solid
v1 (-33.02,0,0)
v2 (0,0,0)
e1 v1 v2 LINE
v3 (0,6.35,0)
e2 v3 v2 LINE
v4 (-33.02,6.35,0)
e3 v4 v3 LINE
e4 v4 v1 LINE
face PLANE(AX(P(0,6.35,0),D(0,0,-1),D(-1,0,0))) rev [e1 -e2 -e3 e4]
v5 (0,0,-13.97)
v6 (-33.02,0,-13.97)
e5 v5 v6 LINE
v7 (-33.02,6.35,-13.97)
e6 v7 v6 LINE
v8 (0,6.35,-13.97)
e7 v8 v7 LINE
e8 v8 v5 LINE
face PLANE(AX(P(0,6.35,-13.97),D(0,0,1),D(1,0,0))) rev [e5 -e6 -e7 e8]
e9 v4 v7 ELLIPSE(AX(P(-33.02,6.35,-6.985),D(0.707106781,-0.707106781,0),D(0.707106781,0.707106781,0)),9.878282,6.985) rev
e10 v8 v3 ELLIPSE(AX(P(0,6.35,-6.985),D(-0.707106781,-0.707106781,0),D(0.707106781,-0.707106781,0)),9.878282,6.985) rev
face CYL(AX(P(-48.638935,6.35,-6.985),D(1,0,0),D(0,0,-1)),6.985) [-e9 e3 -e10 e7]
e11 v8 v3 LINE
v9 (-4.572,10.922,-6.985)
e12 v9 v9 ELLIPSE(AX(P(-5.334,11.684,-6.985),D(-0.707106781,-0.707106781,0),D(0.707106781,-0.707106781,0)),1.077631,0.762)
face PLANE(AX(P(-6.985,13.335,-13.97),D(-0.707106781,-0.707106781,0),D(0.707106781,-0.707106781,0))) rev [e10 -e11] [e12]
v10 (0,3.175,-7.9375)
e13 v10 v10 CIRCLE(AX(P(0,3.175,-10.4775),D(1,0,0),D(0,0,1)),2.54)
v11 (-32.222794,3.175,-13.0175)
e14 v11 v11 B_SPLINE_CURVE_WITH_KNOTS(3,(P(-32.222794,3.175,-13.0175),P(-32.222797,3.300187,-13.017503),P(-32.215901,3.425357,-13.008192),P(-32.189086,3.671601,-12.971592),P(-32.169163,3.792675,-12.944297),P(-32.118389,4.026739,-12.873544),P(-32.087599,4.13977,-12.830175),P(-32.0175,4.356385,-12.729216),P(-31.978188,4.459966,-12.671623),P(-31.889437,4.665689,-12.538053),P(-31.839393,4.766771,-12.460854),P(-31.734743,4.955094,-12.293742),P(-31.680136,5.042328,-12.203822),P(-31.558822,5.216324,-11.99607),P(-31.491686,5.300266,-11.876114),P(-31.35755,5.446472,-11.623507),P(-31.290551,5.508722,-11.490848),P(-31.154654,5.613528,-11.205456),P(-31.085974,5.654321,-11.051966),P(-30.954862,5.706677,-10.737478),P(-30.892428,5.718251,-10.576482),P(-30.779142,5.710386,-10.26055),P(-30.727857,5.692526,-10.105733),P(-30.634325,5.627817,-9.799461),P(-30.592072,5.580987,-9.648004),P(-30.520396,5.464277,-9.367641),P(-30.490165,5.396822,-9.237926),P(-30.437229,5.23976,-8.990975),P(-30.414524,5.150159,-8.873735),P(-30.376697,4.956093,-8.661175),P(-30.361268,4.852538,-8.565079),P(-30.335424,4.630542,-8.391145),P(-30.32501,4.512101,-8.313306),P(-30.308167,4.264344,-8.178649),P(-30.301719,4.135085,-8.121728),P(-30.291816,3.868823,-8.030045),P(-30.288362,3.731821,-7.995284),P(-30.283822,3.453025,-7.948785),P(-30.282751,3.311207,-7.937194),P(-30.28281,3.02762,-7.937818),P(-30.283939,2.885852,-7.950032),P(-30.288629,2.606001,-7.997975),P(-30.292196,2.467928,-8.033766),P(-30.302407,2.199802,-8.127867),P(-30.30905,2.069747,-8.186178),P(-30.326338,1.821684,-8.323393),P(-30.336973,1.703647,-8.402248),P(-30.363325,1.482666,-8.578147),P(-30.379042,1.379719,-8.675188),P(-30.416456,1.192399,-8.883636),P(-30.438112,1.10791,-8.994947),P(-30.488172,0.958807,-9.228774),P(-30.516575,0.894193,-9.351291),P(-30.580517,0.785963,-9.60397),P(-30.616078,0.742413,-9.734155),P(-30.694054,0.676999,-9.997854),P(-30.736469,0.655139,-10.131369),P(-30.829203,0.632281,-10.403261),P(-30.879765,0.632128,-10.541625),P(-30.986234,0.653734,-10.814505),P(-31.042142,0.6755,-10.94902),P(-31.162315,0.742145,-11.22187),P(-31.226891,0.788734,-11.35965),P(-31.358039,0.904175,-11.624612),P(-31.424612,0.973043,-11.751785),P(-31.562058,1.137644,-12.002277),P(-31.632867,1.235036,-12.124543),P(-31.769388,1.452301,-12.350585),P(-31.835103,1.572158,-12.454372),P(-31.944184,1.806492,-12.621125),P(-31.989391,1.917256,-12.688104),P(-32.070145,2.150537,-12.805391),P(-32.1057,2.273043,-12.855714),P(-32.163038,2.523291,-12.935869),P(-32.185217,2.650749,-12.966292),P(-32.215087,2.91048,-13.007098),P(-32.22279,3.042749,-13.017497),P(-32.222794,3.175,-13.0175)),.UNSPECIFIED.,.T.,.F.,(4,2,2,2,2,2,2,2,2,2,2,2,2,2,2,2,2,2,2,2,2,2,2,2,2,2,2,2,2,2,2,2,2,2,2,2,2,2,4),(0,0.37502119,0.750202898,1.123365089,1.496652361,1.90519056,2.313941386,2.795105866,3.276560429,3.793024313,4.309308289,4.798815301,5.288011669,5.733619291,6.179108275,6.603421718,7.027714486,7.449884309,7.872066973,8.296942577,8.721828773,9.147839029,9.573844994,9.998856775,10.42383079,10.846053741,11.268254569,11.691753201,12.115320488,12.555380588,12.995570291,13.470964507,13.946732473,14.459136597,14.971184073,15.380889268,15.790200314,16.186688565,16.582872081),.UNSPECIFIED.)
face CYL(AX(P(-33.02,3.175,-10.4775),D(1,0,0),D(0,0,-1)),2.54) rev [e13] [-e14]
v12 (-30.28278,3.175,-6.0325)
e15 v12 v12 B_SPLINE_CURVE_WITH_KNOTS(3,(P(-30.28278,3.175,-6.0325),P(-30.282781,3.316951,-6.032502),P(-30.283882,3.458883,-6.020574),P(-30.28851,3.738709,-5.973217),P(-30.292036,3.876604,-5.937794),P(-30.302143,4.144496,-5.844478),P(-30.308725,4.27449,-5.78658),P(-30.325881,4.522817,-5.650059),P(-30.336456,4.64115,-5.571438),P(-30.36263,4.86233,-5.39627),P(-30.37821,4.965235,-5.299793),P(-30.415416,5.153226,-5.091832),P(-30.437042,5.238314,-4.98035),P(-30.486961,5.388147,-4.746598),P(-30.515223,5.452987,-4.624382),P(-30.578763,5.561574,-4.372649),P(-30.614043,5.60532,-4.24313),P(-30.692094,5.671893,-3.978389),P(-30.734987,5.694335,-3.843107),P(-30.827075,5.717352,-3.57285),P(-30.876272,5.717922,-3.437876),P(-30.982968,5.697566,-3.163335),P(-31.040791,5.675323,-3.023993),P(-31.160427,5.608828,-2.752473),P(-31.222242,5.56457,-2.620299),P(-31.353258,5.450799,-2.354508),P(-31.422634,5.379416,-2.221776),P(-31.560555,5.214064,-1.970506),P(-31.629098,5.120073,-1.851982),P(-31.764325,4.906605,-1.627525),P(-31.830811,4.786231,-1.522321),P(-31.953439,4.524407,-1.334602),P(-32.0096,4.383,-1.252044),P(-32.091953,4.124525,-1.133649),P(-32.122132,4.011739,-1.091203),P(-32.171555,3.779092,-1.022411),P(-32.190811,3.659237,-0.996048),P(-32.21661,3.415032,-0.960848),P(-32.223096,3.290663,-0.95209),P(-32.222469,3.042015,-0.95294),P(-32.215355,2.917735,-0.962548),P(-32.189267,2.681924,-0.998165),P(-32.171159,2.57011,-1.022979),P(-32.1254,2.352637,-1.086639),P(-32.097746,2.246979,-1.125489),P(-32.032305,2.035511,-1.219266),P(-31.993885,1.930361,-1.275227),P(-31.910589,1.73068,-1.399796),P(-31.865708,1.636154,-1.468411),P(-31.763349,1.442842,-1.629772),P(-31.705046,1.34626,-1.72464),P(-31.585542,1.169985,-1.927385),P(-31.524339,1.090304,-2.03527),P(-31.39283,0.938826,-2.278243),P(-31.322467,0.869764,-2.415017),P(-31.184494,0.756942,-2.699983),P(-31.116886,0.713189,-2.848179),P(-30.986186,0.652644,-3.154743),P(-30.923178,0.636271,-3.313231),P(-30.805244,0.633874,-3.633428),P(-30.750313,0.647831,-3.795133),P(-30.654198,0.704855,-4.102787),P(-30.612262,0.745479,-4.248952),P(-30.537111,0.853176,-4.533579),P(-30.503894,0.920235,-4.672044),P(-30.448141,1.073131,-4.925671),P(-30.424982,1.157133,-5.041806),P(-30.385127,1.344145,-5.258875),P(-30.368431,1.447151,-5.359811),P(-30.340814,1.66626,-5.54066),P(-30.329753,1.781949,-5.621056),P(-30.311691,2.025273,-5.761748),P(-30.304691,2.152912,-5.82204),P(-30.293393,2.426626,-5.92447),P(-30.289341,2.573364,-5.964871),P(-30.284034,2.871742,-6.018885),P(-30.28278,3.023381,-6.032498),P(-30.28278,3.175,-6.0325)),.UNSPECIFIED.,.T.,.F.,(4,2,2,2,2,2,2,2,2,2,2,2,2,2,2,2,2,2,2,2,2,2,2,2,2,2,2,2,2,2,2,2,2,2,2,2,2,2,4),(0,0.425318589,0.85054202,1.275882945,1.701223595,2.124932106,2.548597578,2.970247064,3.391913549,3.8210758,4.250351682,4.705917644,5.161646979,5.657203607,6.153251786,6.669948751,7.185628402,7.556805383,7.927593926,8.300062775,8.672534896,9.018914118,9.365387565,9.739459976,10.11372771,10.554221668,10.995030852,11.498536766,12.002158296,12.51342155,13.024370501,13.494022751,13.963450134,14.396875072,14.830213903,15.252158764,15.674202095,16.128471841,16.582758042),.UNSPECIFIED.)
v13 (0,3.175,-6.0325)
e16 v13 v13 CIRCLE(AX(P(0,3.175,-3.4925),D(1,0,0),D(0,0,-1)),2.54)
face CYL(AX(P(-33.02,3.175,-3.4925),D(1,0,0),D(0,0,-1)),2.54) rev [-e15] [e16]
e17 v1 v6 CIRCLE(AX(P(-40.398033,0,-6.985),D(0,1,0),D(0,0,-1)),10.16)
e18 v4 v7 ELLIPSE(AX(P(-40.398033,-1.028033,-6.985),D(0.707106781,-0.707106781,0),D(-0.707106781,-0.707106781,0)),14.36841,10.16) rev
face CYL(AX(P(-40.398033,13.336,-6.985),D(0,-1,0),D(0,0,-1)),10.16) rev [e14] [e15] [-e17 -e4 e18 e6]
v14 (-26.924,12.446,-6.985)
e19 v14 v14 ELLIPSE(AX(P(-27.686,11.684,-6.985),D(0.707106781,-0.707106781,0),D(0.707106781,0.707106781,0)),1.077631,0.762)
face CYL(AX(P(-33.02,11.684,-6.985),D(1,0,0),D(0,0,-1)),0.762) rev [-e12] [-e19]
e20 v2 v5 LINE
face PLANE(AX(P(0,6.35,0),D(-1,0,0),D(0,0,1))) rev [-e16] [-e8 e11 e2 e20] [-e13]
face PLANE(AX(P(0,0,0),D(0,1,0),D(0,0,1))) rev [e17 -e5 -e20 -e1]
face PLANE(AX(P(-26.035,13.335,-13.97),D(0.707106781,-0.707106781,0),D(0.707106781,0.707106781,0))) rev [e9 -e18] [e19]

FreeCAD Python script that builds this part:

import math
import FreeCAD as App
import Part
import Sketcher
Q = App.Units.Quantity

doc = App.newDocument("Part")
body = doc.addObject("PartDesign::Body", "Body")

sketch1 = doc.addObject("Sketcher::SketchObject", "Sketch")
body.addObject(sketch1)
sketch1.AttachmentSupport = (doc.XZ_Plane, [""])
sketch1.MapMode = "FlatFace"
sketch1.addGeometry([
    Part.LineSegment(App.Vector(-33.02, -13.97, 0), App.Vector(-33.02, 0, 0)),
    Part.LineSegment(App.Vector(-33.02, 0, 0), App.Vector(0, 0, 0)),
    Part.LineSegment(App.Vector(0, 0, 0), App.Vector(0, -13.97, 0)),
    Part.LineSegment(App.Vector(0, -13.97, 0), App.Vector(-33.02, -13.97, 0)),
], False)
sketch1.addConstraint([
    Sketcher.Constraint("Coincident", 0, 2, 1, 1),
    Sketcher.Constraint("Coincident", 1, 2, 2, 1),
    Sketcher.Constraint("Coincident", 2, 2, 3, 1),
    Sketcher.Constraint("Coincident", 3, 2, 0, 1),
    Sketcher.Constraint("Vertical", 0),
    Sketcher.Constraint("Horizontal", 1),
    Sketcher.Constraint("Vertical", 2),
    Sketcher.Constraint("Horizontal", 3),
    Sketcher.Constraint("Coincident", 1, 2, -1, 1),
    Sketcher.Constraint("DistanceX", 1, 1, 1, 2, Q("1.3 in")),
    Sketcher.Constraint("DistanceY", 0, 1, 0, 2, Q("0.55 in")),
])
pad1 = doc.addObject("PartDesign::Pad", "Pad")
body.addObject(pad1)
pad1.Profile = sketch1
pad1.Length = Q("0.25 in")
pad1.Reversed = True

sketch2 = doc.addObject("Sketcher::SketchObject", "Sketch001")
body.addObject(sketch2)
sketch2.AttachmentSupport = (doc.YZ_Plane, [""])
sketch2.MapMode = "FlatFace"
sketch2.addGeometry([
    Part.LineSegment(App.Vector(6.35, 0, 0), App.Vector(6.35, -13.97, 0)),
    Part.ArcOfCircle(Part.Circle(App.Vector(6.35, -6.985, 0), App.Vector(0, 0, 1), 6.985), math.radians(-90), math.radians(90)),
], False)
sketch2.addConstraint([
    Sketcher.Constraint("Coincident", 0, 1, 1, 2),
    Sketcher.Constraint("Coincident", 1, 1, 0, 2),
    Sketcher.Constraint("Vertical", 0),
    Sketcher.Constraint("PointOnObject", 0, 1, -1),
    Sketcher.Constraint("Vertical", 1, 3, 0, 1),
    Sketcher.Constraint("Radius", 1, Q("0.275 in")),
    Sketcher.Constraint("DistanceX", -1, 1, 1, 3, Q("0.25 in")),
])
pad2 = doc.addObject("PartDesign::Pad", "Pad001")
body.addObject(pad2)
pad2.Profile = sketch2
pad2.Length = Q("1.3 in")
pad2.Reversed = True

sketch3 = doc.addObject("Sketcher::SketchObject", "Sketch002")
body.addObject(sketch3)
sketch3.AttachmentSupport = (doc.XY_Plane, [""])
sketch3.MapMode = "FlatFace"
sketch3.addGeometry([
    Part.LineSegment(App.Vector(0, 6.35, 0), App.Vector(0, 13.335, 0)),
    Part.LineSegment(App.Vector(0, 13.335, 0), App.Vector(-6.985, 13.335, 0)),
    Part.LineSegment(App.Vector(-6.985, 13.335, 0), App.Vector(0, 6.35, 0)),
    Part.LineSegment(App.Vector(-33.02, 13.335, 0), App.Vector(-33.02, 6.35, 0)),
    Part.LineSegment(App.Vector(-33.02, 6.35, 0), App.Vector(-26.035, 13.335, 0)),
    Part.LineSegment(App.Vector(-26.035, 13.335, 0), App.Vector(-33.02, 13.335, 0)),
], False)
sketch3.addConstraint([
    Sketcher.Constraint("Coincident", 0, 2, 1, 1),
    Sketcher.Constraint("Coincident", 1, 2, 2, 1),
    Sketcher.Constraint("Coincident", 2, 2, 0, 1),
    Sketcher.Constraint("Coincident", 3, 2, 4, 1),
    Sketcher.Constraint("Coincident", 4, 2, 5, 1),
    Sketcher.Constraint("Coincident", 5, 2, 3, 1),
    Sketcher.Constraint("Vertical", 0),
    Sketcher.Constraint("Horizontal", 1),
    Sketcher.Constraint("Vertical", 3),
    Sketcher.Constraint("Horizontal", 5),
    Sketcher.Constraint("PointOnObject", 0, 2, -2),
    Sketcher.Constraint("Perpendicular", 2, 4),
    Sketcher.Constraint("Horizontal", 2, 2, 3, 2),
    Sketcher.Constraint("Horizontal", 1, 2, 4, 2),
    Sketcher.Constraint("Equal", 1, 5),
    Sketcher.Constraint("DistanceX", 3, 2, -1, 1, Q("1.3 in")),
    Sketcher.Constraint("DistanceX", 1, 2, 1, 1, Q("0.275 in")),
    Sketcher.Constraint("DistanceY", -1, 1, 2, 2, Q("0.25 in")),
])
pocket1 = doc.addObject("PartDesign::Pocket", "Pocket")
body.addObject(pocket1)
pocket1.Profile = sketch3
pocket1.Type = "ThroughAll"

sketch4 = doc.addObject("Sketcher::SketchObject", "Sketch003")
body.addObject(sketch4)
sketch4.AttachmentSupport = (doc.YZ_Plane, [""])
sketch4.MapMode = "FlatFace"
sketch4.addGeometry(Part.Circle(App.Vector(11.684, -6.985, 0), App.Vector(0, 0, 1), 0.762), False)
sketch4.addConstraint([
    Sketcher.Constraint("Diameter", 0, Q("0.06 in")),
    Sketcher.Constraint("DistanceX", -1, 1, 0, 3, Q("0.46 in")),
    Sketcher.Constraint("DistanceY", 0, 3, -1, 1, Q("0.275 in")),
])
pocket2 = doc.addObject("PartDesign::Pocket", "Pocket001")
body.addObject(pocket2)
pocket2.Profile = sketch4
pocket2.Type = "ThroughAll"

sketch5 = doc.addObject("Sketcher::SketchObject", "Sketch004")
body.addObject(sketch5)
sketch5.AttachmentSupport = (doc.YZ_Plane, [""])
sketch5.MapMode = "FlatFace"
sketch5.addGeometry([
    Part.Circle(App.Vector(3.175, -3.4925, 0), App.Vector(0, 0, 1), 2.54),
    Part.Circle(App.Vector(3.175, -10.4775, 0), App.Vector(0, 0, 1), 2.54),
], False)
sketch5.addConstraint([
    Sketcher.Constraint("Equal", 0, 1),
    Sketcher.Constraint("Vertical", 0, 3, 1, 3),
    Sketcher.Constraint("Diameter", 0, Q("0.2 in")),
    Sketcher.Constraint("DistanceX", -1, 1, 0, 3, Q("0.125 in")),
    Sketcher.Constraint("DistanceY", 1, 3, 0, 3, Q("0.275 in")),
    Sketcher.Constraint("DistanceY", 0, 3, -1, 1, Q("0.1375 in")),
])
pocket3 = doc.addObject("PartDesign::Pocket", "Pocket002")
body.addObject(pocket3)
pocket3.Profile = sketch5
pocket3.Type = "ThroughAll"

sketch6 = doc.addObject("Sketcher::SketchObject", "Sketch005")
body.addObject(sketch6)
sketch6.AttachmentSupport = (doc.XZ_Plane, [""])
sketch6.MapMode = "FlatFace"
sketch6.addGeometry([
    Part.LineSegment(App.Vector(-33.02, -13.97, 0), App.Vector(-33.02, 0, 0)),
    Part.ArcOfCircle(Part.Circle(App.Vector(-40.398033, -6.985, 0), App.Vector(0, 0, 1), 10.16), math.radians(-43.432537), math.radians(43.432537)),
], False)
sketch6.addConstraint([
    Sketcher.Constraint("Coincident", 0, 1, 1, 1),
    Sketcher.Constraint("Coincident", 1, 2, 0, 2),
    Sketcher.Constraint("Vertical", 0),
    Sketcher.Constraint("PointOnObject", 1, 2, -1),
    Sketcher.Constraint("Radius", 1, Q("0.4 in")),
    Sketcher.Constraint("DistanceY", 0, 1, 0, 2, Q("0.55 in")),
    Sketcher.Constraint("DistanceX", 0, 1, -1, 1, Q("1.3 in")),
])
pocket4 = doc.addObject("PartDesign::Pocket", "Pocket003")
body.addObject(pocket4)
pocket4.Profile = sketch6
pocket4.Type = "UpToFirst"

doc.recompute()
